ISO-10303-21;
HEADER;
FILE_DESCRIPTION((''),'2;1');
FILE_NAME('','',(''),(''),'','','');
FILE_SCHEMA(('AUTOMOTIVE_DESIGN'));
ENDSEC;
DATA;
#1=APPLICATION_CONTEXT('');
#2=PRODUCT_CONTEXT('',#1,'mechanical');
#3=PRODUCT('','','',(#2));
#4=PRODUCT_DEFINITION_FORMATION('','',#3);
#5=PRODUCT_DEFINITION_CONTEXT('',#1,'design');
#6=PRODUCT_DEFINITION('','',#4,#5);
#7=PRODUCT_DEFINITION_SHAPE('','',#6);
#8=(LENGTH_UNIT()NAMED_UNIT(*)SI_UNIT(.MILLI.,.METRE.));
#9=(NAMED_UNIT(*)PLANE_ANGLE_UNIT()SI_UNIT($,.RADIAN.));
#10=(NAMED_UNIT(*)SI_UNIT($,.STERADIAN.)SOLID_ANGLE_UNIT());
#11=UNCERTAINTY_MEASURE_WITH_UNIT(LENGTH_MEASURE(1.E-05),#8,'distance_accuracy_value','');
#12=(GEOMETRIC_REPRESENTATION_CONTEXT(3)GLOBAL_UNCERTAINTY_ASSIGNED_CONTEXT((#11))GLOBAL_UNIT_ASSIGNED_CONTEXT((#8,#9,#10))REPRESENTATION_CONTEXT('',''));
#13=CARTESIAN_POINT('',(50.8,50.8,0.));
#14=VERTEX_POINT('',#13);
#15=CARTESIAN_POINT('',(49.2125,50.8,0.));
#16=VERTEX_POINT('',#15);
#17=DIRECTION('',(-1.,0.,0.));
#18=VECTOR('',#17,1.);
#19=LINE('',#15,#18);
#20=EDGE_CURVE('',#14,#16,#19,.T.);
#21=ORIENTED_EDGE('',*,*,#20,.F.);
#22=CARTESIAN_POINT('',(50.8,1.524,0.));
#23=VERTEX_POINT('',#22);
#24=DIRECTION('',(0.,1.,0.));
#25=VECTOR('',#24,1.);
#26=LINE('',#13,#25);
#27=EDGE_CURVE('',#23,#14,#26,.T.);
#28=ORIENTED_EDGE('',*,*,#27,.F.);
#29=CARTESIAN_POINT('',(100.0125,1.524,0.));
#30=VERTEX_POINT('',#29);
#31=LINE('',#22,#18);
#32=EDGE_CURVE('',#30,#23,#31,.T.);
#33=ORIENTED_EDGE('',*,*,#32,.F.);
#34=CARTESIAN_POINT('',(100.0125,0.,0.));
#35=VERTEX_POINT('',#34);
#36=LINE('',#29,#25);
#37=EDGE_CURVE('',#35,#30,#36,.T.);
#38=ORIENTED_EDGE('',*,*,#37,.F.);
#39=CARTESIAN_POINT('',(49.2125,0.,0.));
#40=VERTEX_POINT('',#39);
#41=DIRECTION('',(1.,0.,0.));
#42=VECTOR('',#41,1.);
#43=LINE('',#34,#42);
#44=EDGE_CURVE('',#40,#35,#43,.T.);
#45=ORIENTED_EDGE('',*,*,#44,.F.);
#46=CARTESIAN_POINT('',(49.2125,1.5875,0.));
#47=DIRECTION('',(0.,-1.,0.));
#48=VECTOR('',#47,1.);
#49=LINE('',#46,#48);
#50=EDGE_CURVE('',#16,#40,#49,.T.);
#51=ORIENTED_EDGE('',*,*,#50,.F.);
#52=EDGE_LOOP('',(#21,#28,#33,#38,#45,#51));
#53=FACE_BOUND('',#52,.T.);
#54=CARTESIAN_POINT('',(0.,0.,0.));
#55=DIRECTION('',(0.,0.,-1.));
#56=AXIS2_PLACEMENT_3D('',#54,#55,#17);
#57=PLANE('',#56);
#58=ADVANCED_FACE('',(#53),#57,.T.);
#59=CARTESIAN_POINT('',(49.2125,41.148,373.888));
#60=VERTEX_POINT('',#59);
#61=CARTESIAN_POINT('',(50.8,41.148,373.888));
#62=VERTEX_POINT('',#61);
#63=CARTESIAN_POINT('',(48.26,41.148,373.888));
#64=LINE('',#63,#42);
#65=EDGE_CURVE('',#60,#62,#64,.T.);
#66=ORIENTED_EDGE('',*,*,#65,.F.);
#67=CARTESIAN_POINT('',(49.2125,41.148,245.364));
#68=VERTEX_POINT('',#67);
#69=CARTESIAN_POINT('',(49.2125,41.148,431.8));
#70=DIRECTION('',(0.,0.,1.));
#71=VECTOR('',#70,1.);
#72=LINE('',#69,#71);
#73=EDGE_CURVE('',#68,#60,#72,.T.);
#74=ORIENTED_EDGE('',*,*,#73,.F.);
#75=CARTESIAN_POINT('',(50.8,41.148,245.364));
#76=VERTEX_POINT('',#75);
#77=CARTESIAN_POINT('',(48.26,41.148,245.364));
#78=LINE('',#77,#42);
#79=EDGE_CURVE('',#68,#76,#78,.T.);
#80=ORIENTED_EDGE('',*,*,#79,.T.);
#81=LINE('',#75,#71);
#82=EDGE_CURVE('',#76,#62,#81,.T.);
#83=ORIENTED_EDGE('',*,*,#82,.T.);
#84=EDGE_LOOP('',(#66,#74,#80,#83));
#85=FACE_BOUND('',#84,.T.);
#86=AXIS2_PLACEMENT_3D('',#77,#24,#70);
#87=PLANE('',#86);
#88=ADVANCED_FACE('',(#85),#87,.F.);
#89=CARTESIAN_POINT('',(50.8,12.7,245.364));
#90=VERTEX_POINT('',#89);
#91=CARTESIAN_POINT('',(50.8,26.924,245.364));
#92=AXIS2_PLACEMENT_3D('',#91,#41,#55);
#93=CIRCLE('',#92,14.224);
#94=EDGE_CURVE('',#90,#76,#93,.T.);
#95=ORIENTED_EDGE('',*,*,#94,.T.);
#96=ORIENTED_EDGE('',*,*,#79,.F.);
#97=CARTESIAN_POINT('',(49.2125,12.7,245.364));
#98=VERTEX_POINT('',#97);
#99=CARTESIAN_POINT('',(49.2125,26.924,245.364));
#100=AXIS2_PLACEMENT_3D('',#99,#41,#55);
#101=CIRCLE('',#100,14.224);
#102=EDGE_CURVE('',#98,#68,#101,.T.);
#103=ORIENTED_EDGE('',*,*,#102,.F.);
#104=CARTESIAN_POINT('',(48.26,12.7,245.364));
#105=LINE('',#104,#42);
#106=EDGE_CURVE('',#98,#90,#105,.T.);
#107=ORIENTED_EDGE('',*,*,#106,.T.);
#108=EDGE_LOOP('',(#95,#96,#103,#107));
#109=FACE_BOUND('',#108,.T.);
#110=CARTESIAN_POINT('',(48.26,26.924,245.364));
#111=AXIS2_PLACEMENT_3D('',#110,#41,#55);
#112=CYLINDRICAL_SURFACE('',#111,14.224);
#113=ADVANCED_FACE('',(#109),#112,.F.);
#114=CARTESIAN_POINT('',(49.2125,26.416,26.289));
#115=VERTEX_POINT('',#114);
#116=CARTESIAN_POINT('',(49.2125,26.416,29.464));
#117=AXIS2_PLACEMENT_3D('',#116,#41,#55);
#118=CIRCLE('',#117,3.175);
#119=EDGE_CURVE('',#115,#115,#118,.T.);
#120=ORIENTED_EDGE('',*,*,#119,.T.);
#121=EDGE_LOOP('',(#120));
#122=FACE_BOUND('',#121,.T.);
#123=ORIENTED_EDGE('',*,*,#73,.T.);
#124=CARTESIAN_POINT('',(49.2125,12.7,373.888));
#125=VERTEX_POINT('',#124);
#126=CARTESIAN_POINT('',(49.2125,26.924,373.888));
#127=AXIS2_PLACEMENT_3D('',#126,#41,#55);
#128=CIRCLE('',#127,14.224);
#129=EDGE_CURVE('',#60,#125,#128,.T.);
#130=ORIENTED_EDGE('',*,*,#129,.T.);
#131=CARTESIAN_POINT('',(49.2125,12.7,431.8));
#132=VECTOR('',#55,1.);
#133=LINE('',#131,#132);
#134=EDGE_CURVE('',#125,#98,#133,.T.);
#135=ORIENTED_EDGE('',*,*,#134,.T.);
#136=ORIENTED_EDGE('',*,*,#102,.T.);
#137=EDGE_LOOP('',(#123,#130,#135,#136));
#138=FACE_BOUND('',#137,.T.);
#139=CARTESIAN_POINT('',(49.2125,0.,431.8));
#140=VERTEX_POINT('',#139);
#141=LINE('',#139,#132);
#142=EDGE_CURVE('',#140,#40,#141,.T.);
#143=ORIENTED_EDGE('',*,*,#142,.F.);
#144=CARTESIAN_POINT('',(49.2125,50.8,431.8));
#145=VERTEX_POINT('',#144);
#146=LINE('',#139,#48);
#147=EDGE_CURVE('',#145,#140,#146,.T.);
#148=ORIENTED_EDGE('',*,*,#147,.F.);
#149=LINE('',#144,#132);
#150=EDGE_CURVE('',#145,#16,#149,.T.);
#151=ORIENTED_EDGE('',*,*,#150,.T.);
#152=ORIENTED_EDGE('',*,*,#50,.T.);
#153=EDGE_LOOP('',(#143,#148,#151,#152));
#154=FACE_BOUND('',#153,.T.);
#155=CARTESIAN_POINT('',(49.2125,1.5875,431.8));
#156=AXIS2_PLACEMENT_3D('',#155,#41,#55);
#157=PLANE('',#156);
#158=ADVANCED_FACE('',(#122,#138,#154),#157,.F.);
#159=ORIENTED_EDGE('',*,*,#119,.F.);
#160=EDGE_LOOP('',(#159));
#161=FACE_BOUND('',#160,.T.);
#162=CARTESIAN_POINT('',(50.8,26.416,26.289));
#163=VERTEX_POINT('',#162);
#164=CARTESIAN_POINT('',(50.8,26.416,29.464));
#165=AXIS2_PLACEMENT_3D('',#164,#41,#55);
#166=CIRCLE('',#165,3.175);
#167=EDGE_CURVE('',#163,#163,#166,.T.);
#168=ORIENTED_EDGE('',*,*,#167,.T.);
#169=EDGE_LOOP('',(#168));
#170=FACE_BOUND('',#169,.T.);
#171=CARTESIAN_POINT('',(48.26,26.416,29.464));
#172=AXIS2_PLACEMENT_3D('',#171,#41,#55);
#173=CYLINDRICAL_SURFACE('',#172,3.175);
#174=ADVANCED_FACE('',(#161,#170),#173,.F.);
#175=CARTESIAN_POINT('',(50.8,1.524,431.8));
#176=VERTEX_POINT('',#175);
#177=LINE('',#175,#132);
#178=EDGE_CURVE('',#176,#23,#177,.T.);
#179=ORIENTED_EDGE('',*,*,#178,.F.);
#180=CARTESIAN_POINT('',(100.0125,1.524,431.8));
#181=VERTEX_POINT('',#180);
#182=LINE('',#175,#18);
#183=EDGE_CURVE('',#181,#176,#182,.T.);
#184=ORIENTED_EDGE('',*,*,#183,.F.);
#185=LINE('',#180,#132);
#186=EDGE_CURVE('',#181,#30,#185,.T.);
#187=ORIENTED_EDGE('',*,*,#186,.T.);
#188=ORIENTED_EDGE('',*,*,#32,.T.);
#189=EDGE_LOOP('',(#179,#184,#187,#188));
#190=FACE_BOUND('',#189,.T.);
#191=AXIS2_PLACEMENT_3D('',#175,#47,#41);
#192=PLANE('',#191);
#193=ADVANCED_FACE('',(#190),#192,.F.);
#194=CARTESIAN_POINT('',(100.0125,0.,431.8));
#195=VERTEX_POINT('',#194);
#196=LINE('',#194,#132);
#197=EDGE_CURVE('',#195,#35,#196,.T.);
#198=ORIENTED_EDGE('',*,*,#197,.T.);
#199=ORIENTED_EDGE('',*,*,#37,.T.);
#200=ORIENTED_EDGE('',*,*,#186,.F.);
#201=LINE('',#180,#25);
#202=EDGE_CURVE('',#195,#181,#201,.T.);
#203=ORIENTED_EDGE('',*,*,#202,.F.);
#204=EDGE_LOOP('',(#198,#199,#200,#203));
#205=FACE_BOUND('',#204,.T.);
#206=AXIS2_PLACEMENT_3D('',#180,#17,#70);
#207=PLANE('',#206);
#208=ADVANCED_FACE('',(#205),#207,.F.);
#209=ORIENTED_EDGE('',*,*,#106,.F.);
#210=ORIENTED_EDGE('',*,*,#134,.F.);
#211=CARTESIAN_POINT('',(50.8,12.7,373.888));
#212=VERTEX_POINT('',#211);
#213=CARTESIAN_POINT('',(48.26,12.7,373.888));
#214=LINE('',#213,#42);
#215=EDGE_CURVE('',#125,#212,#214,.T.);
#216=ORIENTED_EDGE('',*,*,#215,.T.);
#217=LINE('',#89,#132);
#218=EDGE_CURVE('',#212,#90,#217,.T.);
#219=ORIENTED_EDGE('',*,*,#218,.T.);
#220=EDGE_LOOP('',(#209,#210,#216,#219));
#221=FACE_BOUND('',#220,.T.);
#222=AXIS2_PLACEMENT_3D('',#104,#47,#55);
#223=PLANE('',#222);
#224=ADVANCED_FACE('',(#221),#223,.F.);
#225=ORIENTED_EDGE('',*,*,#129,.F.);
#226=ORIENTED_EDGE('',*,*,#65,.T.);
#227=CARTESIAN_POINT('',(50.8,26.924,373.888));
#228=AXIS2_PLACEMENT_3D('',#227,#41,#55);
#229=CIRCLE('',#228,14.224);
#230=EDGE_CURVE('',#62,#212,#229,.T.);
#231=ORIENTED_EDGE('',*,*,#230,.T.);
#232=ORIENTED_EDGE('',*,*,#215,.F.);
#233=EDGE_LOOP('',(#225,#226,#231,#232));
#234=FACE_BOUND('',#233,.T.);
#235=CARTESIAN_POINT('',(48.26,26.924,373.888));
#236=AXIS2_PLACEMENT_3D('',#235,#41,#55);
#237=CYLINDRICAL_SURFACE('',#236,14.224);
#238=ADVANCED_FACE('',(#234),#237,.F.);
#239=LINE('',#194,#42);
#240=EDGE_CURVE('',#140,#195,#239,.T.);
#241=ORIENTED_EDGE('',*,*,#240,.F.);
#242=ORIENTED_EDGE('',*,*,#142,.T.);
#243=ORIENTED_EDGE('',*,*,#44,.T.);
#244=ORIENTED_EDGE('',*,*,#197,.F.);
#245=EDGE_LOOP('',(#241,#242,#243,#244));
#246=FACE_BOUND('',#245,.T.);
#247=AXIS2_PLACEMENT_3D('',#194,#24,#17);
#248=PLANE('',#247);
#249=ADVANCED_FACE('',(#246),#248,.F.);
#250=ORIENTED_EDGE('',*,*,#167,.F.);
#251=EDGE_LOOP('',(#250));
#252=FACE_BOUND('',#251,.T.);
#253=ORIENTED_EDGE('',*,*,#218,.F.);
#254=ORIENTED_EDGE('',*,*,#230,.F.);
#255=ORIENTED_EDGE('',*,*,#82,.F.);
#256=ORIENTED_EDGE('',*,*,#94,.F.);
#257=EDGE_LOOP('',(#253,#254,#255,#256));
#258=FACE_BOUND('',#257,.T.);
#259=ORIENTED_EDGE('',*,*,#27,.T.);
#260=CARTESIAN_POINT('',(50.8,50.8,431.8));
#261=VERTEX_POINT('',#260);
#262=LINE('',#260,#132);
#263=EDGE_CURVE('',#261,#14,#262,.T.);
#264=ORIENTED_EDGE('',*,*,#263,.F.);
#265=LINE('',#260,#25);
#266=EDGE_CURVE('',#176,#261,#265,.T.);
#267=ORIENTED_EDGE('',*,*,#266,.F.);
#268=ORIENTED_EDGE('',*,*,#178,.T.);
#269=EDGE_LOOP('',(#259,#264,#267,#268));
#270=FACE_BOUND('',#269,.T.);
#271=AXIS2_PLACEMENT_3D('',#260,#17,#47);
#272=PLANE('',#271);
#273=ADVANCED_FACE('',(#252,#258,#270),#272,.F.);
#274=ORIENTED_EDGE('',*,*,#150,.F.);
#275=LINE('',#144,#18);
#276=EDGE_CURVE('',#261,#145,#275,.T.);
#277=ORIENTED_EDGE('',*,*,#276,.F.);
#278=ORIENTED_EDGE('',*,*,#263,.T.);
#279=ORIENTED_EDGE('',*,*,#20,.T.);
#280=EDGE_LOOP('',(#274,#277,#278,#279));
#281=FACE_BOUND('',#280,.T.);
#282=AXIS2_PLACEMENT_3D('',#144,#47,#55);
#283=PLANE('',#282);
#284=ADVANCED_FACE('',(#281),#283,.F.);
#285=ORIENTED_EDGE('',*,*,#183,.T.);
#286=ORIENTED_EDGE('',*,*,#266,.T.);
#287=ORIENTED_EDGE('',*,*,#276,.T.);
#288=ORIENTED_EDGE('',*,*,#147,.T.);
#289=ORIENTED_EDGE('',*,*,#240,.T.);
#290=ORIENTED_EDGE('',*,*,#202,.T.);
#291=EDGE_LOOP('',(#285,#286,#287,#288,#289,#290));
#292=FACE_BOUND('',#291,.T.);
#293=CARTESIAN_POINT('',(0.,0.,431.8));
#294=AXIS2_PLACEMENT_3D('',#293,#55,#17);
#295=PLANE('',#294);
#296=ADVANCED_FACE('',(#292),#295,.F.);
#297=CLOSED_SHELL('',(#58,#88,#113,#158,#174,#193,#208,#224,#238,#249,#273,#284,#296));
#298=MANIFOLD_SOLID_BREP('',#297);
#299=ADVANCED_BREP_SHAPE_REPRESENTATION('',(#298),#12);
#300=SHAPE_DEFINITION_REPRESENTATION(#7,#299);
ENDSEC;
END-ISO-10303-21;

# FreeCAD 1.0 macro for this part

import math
import FreeCAD as App
import Part
import Sketcher

V = App.Vector
Q = App.Units.Quantity


def add_polygon(sketch, points):
    """Adds a closed chain of lines whose ends are joined by coincident constraints."""
    first, n = sketch.GeometryCount, len(points)
    for a, b in zip(points, points[1:] + points[:1]):
        sketch.addGeometry(Part.LineSegment(App.Vector(*a, 0), App.Vector(*b, 0)), False)
    for i in range(n):
        sketch.addConstraint(Sketcher.Constraint("Coincident", first + i, 2, first + (i + 1) % n, 1))

doc = App.newDocument("Part")
body = doc.addObject("PartDesign::Body", "Body")

# Sketch on XY plane
sketch1 = body.newObject("Sketcher::SketchObject", "Sketch")
sketch1.AttachmentSupport = (doc.getObject("XY_Plane"), [""])
sketch1.MapMode = "FlatFace"
add_polygon(sketch1, [(49.2, 50.8), (49.2, 0), (100, 0), (100, 1.5), (50.8, 1.5), (50.8, 50.8)])  # lines 0-5
sketch1.addConstraint([
    Sketcher.Constraint("Vertical", 0),
    Sketcher.Constraint("Horizontal", 1),
    Sketcher.Constraint("Vertical", 2),
    Sketcher.Constraint("Horizontal", 3),
    Sketcher.Constraint("Vertical", 4),
    Sketcher.Constraint("Horizontal", 5),
    Sketcher.Constraint("PointOnObject", 0, 2, -1),
    Sketcher.Constraint("Equal", 1, 0),
    Sketcher.Constraint("DistanceX", 1, 1, 1, 2, Q("2 in")),
    Sketcher.Constraint("DistanceX", -1, 1, 3, 2, Q("2 in")),
    Sketcher.Constraint("DistanceY", 2, 1, 2, 2, Q("0.06 in")),
    Sketcher.Constraint("DistanceX", 3, 2, 3, 1, Q("1.9375 in")),
])
pad1 = body.newObject("PartDesign::Pad", "Pad")
pad1.Profile = sketch1
pad1.Length = Q("17 in")

# Sketch on YZ plane
sketch2 = body.newObject("Sketcher::SketchObject", "Sketch001")
sketch2.AttachmentSupport = (doc.getObject("YZ_Plane"), [""])
sketch2.MapMode = "FlatFace"
sketch2.AttachmentOffset = App.Placement(V(0, 0, 2 * 25.4), App.Rotation())
sketch2.addGeometry([
    Part.Circle(V(26.4, 29.5, 0), V(0, 0, 1), 3.2),  # 0
    Part.LineSegment(V(12.7, 373.9, 0), V(12.7, 245.4, 0)),  # 1
    Part.ArcOfCircle(Part.Circle(V(26.9, 245.4, 0), V(0, 0, 1), 14.2), math.radians(180), math.radians(360)),  # 2
    Part.LineSegment(V(41.1, 245.4, 0), V(41.1, 373.9, 0)),  # 3
    Part.ArcOfCircle(Part.Circle(V(26.9, 373.9, 0), V(0, 0, 1), 14.2), math.radians(0), math.radians(180)),  # 4
], False)
sketch2.addConstraint([
    Sketcher.Constraint("Tangent", 1, 2, 2, 1),
    Sketcher.Constraint("Tangent", 2, 2, 3, 1),
    Sketcher.Constraint("Tangent", 3, 2, 4, 1),
    Sketcher.Constraint("Tangent", 4, 2, 1, 1),
    Sketcher.Constraint("Vertical", 1),
    Sketcher.Constraint("Vertical", 3),
    Sketcher.Constraint("Diameter", 0, Q("0.25 in")),
    Sketcher.Constraint("Radius", 2, Q("0.56 in")),
    Sketcher.Constraint("DistanceY", 1, 2, 1, 1, Q("5.06 in")),
    Sketcher.Constraint("DistanceX", -1, 1, 1, 2, Q("0.5 in")),
    Sketcher.Constraint("DistanceY", 0, 3, 2, 3, Q("8.5 in")),
    Sketcher.Constraint("DistanceX", -1, 1, 0, 3, Q("1.04 in")),
    Sketcher.Constraint("DistanceY", -1, 1, 0, 3, Q("1.16 in")),
])
pocket1 = body.newObject("PartDesign::Pocket", "Pocket")
pocket1.Profile = sketch2
pocket1.Length = Q("0.1 in")

doc.recompute()
